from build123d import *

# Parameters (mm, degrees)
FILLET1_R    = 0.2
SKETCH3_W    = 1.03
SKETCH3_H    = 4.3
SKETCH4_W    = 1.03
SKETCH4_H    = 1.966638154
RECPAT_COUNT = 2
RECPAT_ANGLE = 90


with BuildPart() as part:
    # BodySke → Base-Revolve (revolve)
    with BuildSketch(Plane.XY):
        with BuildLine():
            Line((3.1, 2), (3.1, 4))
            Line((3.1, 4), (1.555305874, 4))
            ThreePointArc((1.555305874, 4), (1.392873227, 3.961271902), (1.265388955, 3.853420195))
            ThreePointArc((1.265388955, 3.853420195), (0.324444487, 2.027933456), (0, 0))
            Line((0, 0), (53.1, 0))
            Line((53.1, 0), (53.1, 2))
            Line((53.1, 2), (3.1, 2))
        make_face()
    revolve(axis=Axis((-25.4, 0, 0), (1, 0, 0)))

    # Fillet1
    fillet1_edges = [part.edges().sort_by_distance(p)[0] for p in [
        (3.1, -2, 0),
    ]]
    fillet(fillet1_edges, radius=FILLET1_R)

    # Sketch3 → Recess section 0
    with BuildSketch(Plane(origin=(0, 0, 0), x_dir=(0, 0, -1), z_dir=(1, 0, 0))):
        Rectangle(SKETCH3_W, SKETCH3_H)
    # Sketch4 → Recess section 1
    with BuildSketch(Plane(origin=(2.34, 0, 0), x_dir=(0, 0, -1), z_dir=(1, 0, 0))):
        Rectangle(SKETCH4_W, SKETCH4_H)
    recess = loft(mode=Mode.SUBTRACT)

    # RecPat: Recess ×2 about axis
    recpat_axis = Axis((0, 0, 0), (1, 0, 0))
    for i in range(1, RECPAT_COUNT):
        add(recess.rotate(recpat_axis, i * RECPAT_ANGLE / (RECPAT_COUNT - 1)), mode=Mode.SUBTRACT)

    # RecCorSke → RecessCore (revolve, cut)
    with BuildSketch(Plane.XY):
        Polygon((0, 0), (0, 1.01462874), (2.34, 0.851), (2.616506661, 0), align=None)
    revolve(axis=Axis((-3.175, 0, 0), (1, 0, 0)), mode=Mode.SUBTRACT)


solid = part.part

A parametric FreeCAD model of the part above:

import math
import FreeCAD as App
import Part
import Sketcher
from FreeCAD import Vector
Q = App.Units.Quantity


def edges_at(feature, points):
    """Names of the edges that pass closest to the given points."""
    edges = feature.Shape.Edges
    near = lambda p: min(range(len(edges)), key=lambda i: edges[i].distToShape(Part.Vertex(*p))[0])
    return sorted({f"Edge{near(p) + 1}" for p in points})

doc = App.newDocument("Part")
body = doc.addObject("PartDesign::Body", "Body")

# Sketch on XY plane
sketch1 = body.newObject("Sketcher::SketchObject", "Sketch")
sketch1.AttachmentSupport = (doc.getObject("XY_Plane"), [""])
sketch1.MapMode = "FlatFace"
sketch1.addGeometry(Part.LineSegment(Vector(3.1, 2, 0), Vector(3.1, 4, 0)), False)
sketch1.addGeometry(Part.LineSegment(Vector(3.1, 4, 0), Vector(1.555306, 4, 0)), False)
sketch1.addGeometry(Part.ArcOfCircle(Part.Circle(Vector(1.555306, 3.64, 0), Vector(0, 0, 1), 0.36), math.radians(90), math.radians(143.641633)), False)
sketch1.addGeometry(Part.ArcOfCircle(Part.Circle(Vector(6.5, 0, 0), Vector(0, 0, 1), 6.5), math.radians(143.641632), math.radians(180)), False)
sketch1.addGeometry(Part.LineSegment(Vector(0, 0, 0), Vector(53.1, 0, 0)), False)
sketch1.addGeometry(Part.LineSegment(Vector(53.1, 0, 0), Vector(53.1, 2, 0)), False)
sketch1.addGeometry(Part.LineSegment(Vector(53.1, 2, 0), Vector(3.1, 2, 0)), False)
sketch1.addConstraint(Sketcher.Constraint("Coincident", 0, 2, 1, 1))
sketch1.addConstraint(Sketcher.Constraint("Tangent", 1, 2, 2, 1))
sketch1.addConstraint(Sketcher.Constraint("Tangent", 2, 2, 3, 1))
sketch1.addConstraint(Sketcher.Constraint("Coincident", 3, 2, 4, 1))
sketch1.addConstraint(Sketcher.Constraint("Coincident", 4, 2, 5, 1))
sketch1.addConstraint(Sketcher.Constraint("Coincident", 5, 2, 6, 1))
sketch1.addConstraint(Sketcher.Constraint("Coincident", 6, 2, 0, 1))
sketch1.addConstraint(Sketcher.Constraint("Vertical", 0))
sketch1.addConstraint(Sketcher.Constraint("Horizontal", 1))
sketch1.addConstraint(Sketcher.Constraint("Horizontal", 4))
sketch1.addConstraint(Sketcher.Constraint("Vertical", 5))
sketch1.addConstraint(Sketcher.Constraint("Horizontal", 6))
sketch1.addConstraint(Sketcher.Constraint("Coincident", 3, 2, -1, 1))
sketch1.addConstraint(Sketcher.Constraint("PointOnObject", 3, 3, -1))
sketch1.addConstraint(Sketcher.Constraint("Equal", 0, 5))
sketch1.addConstraint(Sketcher.Constraint("Radius", 3, 6.5))
sketch1.addConstraint(Sketcher.Constraint("DistanceX", 6, 2, 6, 1, 50.0))
sketch1.addConstraint(Sketcher.Constraint("DistanceY", 0, 1, 0, 2, 2.0))
sketch1.addConstraint(Sketcher.Constraint("Radius", 2, 0.36))
sketch1.addConstraint(Sketcher.Constraint("DistanceX", 4, 1, 4, 2, 53.1))
revolution = body.newObject("PartDesign::Revolution", "Revolution")
revolution.Profile = sketch1
revolution.ReferenceAxis = (sketch1, ["H_Axis"])
revolution.Angle = 360
doc.recompute()

fillet = body.newObject("PartDesign::Fillet", "Fillet")
fillet.Base = (revolution, edges_at(revolution, [(3.1, -2, 0)]))
fillet.Radius = 0.2

# Sketch on YZ plane
sketch2 = body.newObject("Sketcher::SketchObject", "Sketch001")
sketch2.AttachmentSupport = (doc.getObject("YZ_Plane"), [""])
sketch2.MapMode = "FlatFace"
sketch2.addGeometry(Part.LineSegment(Vector(2.15, 0.515, 0), Vector(-2.15, 0.515, 0)), False)
sketch2.addGeometry(Part.LineSegment(Vector(-2.15, 0.515, 0), Vector(-2.15, -0.515, 0)), False)
sketch2.addGeometry(Part.LineSegment(Vector(-2.15, -0.515, 0), Vector(2.15, -0.515, 0)), False)
sketch2.addGeometry(Part.LineSegment(Vector(2.15, -0.515, 0), Vector(2.15, 0.515, 0)), False)
sketch2.addConstraint(Sketcher.Constraint("Coincident", 0, 2, 1, 1))
sketch2.addConstraint(Sketcher.Constraint("Coincident", 1, 2, 2, 1))
sketch2.addConstraint(Sketcher.Constraint("Coincident", 2, 2, 3, 1))
sketch2.addConstraint(Sketcher.Constraint("Coincident", 3, 2, 0, 1))
sketch2.addConstraint(Sketcher.Constraint("Horizontal", 0))
sketch2.addConstraint(Sketcher.Constraint("Vertical", 1))
sketch2.addConstraint(Sketcher.Constraint("Horizontal", 2))
sketch2.addConstraint(Sketcher.Constraint("Vertical", 3))
sketch2.addConstraint(Sketcher.Constraint("Symmetric", 0, 2, 2, 2, -1, 1))
sketch2.addConstraint(Sketcher.Constraint("DistanceX", 0, 2, 0, 1, 4.3))
sketch2.addConstraint(Sketcher.Constraint("DistanceY", 1, 2, 1, 1, 1.03))

# Sketch on YZ plane
sketch3 = body.newObject("Sketcher::SketchObject", "Sketch002")
sketch3.AttachmentSupport = (doc.getObject("YZ_Plane"), [""])
sketch3.MapMode = "FlatFace"
sketch3.AttachmentOffset = App.Placement(Vector(0, 0, 2.34), App.Rotation())
sketch3.addGeometry(Part.LineSegment(Vector(0.983319, 0.515, 0), Vector(-0.983319, 0.515, 0)), False)
sketch3.addGeometry(Part.LineSegment(Vector(-0.983319, 0.515, 0), Vector(-0.983319, -0.515, 0)), False)
sketch3.addGeometry(Part.LineSegment(Vector(-0.983319, -0.515, 0), Vector(0.983319, -0.515, 0)), False)
sketch3.addGeometry(Part.LineSegment(Vector(0.983319, -0.515, 0), Vector(0.983319, 0.515, 0)), False)
sketch3.addConstraint(Sketcher.Constraint("Coincident", 0, 2, 1, 1))
sketch3.addConstraint(Sketcher.Constraint("Coincident", 1, 2, 2, 1))
sketch3.addConstraint(Sketcher.Constraint("Coincident", 2, 2, 3, 1))
sketch3.addConstraint(Sketcher.Constraint("Coincident", 3, 2, 0, 1))
sketch3.addConstraint(Sketcher.Constraint("Horizontal", 0))
sketch3.addConstraint(Sketcher.Constraint("Vertical", 1))
sketch3.addConstraint(Sketcher.Constraint("Horizontal", 2))
sketch3.addConstraint(Sketcher.Constraint("Vertical", 3))
sketch3.addConstraint(Sketcher.Constraint("Symmetric", 0, 2, 2, 2, -1, 1))
sketch3.addConstraint(Sketcher.Constraint("DistanceY", 1, 2, 1, 1, 1.03))
sketch3.addConstraint(Sketcher.Constraint("DistanceX", 0, 2, 0, 1, 1.966638))

subtractiveloft = body.newObject("PartDesign::SubtractiveLoft", "SubtractiveLoft")
subtractiveloft.Profile = sketch2
subtractiveloft.Sections = [sketch3]
doc.recompute()

polarpattern = body.newObject("PartDesign::PolarPattern", "PolarPattern")
polarpattern.Originals = [subtractiveloft]
polarpattern.Axis = (doc.getObject("X_Axis"), [""])
polarpattern.Angle = 90
polarpattern.Occurrences = 2
body.Tip = polarpattern

# Sketch on XY plane
sketch4 = body.newObject("Sketcher::SketchObject", "Sketch003")
sketch4.AttachmentSupport = (doc.getObject("XY_Plane"), [""])
sketch4.MapMode = "FlatFace"
sketch4.addGeometry(Part.LineSegment(Vector(0, 1.014629, 0), Vector(0, 0, 0)), False)
sketch4.addGeometry(Part.LineSegment(Vector(0, 0, 0), Vector(2.616507, 0, 0)), False)
sketch4.addGeometry(Part.LineSegment(Vector(2.616507, 0, 0), Vector(2.34, 0.851, 0)), False)
sketch4.addGeometry(Part.LineSegment(Vector(2.34, 0.851, 0), Vector(0, 1.014629, 0)), False)
sketch4.addConstraint(Sketcher.Constraint("Coincident", 0, 2, 1, 1))
sketch4.addConstraint(Sketcher.Constraint("Coincident", 1, 2, 2, 1))
sketch4.addConstraint(Sketcher.Constraint("Coincident", 2, 2, 3, 1))
sketch4.addConstraint(Sketcher.Constraint("Coincident", 3, 2, 0, 1))
sketch4.addConstraint(Sketcher.Constraint("Vertical", 0))
sketch4.addConstraint(Sketcher.Constraint("Horizontal", 1))
sketch4.addConstraint(Sketcher.Constraint("Coincident", 0, 2, -1, 1))
sketch4.addConstraint(Sketcher.Constraint("Angle", 2, Q("108 deg")))
sketch4.addConstraint(Sketcher.Constraint("Angle", 3, Q("176 deg")))
sketch4.addConstraint(Sketcher.Constraint("DistanceX", -1, 1, 2, 2, 2.34))
sketch4.addConstraint(Sketcher.Constraint("DistanceY", -1, 1, 2, 2, 0.851))
groove = body.newObject("PartDesign::Groove", "Groove")
groove.Profile = sketch4
groove.ReferenceAxis = (sketch4, ["H_Axis"])
groove.Angle = 360

doc.recompute()
